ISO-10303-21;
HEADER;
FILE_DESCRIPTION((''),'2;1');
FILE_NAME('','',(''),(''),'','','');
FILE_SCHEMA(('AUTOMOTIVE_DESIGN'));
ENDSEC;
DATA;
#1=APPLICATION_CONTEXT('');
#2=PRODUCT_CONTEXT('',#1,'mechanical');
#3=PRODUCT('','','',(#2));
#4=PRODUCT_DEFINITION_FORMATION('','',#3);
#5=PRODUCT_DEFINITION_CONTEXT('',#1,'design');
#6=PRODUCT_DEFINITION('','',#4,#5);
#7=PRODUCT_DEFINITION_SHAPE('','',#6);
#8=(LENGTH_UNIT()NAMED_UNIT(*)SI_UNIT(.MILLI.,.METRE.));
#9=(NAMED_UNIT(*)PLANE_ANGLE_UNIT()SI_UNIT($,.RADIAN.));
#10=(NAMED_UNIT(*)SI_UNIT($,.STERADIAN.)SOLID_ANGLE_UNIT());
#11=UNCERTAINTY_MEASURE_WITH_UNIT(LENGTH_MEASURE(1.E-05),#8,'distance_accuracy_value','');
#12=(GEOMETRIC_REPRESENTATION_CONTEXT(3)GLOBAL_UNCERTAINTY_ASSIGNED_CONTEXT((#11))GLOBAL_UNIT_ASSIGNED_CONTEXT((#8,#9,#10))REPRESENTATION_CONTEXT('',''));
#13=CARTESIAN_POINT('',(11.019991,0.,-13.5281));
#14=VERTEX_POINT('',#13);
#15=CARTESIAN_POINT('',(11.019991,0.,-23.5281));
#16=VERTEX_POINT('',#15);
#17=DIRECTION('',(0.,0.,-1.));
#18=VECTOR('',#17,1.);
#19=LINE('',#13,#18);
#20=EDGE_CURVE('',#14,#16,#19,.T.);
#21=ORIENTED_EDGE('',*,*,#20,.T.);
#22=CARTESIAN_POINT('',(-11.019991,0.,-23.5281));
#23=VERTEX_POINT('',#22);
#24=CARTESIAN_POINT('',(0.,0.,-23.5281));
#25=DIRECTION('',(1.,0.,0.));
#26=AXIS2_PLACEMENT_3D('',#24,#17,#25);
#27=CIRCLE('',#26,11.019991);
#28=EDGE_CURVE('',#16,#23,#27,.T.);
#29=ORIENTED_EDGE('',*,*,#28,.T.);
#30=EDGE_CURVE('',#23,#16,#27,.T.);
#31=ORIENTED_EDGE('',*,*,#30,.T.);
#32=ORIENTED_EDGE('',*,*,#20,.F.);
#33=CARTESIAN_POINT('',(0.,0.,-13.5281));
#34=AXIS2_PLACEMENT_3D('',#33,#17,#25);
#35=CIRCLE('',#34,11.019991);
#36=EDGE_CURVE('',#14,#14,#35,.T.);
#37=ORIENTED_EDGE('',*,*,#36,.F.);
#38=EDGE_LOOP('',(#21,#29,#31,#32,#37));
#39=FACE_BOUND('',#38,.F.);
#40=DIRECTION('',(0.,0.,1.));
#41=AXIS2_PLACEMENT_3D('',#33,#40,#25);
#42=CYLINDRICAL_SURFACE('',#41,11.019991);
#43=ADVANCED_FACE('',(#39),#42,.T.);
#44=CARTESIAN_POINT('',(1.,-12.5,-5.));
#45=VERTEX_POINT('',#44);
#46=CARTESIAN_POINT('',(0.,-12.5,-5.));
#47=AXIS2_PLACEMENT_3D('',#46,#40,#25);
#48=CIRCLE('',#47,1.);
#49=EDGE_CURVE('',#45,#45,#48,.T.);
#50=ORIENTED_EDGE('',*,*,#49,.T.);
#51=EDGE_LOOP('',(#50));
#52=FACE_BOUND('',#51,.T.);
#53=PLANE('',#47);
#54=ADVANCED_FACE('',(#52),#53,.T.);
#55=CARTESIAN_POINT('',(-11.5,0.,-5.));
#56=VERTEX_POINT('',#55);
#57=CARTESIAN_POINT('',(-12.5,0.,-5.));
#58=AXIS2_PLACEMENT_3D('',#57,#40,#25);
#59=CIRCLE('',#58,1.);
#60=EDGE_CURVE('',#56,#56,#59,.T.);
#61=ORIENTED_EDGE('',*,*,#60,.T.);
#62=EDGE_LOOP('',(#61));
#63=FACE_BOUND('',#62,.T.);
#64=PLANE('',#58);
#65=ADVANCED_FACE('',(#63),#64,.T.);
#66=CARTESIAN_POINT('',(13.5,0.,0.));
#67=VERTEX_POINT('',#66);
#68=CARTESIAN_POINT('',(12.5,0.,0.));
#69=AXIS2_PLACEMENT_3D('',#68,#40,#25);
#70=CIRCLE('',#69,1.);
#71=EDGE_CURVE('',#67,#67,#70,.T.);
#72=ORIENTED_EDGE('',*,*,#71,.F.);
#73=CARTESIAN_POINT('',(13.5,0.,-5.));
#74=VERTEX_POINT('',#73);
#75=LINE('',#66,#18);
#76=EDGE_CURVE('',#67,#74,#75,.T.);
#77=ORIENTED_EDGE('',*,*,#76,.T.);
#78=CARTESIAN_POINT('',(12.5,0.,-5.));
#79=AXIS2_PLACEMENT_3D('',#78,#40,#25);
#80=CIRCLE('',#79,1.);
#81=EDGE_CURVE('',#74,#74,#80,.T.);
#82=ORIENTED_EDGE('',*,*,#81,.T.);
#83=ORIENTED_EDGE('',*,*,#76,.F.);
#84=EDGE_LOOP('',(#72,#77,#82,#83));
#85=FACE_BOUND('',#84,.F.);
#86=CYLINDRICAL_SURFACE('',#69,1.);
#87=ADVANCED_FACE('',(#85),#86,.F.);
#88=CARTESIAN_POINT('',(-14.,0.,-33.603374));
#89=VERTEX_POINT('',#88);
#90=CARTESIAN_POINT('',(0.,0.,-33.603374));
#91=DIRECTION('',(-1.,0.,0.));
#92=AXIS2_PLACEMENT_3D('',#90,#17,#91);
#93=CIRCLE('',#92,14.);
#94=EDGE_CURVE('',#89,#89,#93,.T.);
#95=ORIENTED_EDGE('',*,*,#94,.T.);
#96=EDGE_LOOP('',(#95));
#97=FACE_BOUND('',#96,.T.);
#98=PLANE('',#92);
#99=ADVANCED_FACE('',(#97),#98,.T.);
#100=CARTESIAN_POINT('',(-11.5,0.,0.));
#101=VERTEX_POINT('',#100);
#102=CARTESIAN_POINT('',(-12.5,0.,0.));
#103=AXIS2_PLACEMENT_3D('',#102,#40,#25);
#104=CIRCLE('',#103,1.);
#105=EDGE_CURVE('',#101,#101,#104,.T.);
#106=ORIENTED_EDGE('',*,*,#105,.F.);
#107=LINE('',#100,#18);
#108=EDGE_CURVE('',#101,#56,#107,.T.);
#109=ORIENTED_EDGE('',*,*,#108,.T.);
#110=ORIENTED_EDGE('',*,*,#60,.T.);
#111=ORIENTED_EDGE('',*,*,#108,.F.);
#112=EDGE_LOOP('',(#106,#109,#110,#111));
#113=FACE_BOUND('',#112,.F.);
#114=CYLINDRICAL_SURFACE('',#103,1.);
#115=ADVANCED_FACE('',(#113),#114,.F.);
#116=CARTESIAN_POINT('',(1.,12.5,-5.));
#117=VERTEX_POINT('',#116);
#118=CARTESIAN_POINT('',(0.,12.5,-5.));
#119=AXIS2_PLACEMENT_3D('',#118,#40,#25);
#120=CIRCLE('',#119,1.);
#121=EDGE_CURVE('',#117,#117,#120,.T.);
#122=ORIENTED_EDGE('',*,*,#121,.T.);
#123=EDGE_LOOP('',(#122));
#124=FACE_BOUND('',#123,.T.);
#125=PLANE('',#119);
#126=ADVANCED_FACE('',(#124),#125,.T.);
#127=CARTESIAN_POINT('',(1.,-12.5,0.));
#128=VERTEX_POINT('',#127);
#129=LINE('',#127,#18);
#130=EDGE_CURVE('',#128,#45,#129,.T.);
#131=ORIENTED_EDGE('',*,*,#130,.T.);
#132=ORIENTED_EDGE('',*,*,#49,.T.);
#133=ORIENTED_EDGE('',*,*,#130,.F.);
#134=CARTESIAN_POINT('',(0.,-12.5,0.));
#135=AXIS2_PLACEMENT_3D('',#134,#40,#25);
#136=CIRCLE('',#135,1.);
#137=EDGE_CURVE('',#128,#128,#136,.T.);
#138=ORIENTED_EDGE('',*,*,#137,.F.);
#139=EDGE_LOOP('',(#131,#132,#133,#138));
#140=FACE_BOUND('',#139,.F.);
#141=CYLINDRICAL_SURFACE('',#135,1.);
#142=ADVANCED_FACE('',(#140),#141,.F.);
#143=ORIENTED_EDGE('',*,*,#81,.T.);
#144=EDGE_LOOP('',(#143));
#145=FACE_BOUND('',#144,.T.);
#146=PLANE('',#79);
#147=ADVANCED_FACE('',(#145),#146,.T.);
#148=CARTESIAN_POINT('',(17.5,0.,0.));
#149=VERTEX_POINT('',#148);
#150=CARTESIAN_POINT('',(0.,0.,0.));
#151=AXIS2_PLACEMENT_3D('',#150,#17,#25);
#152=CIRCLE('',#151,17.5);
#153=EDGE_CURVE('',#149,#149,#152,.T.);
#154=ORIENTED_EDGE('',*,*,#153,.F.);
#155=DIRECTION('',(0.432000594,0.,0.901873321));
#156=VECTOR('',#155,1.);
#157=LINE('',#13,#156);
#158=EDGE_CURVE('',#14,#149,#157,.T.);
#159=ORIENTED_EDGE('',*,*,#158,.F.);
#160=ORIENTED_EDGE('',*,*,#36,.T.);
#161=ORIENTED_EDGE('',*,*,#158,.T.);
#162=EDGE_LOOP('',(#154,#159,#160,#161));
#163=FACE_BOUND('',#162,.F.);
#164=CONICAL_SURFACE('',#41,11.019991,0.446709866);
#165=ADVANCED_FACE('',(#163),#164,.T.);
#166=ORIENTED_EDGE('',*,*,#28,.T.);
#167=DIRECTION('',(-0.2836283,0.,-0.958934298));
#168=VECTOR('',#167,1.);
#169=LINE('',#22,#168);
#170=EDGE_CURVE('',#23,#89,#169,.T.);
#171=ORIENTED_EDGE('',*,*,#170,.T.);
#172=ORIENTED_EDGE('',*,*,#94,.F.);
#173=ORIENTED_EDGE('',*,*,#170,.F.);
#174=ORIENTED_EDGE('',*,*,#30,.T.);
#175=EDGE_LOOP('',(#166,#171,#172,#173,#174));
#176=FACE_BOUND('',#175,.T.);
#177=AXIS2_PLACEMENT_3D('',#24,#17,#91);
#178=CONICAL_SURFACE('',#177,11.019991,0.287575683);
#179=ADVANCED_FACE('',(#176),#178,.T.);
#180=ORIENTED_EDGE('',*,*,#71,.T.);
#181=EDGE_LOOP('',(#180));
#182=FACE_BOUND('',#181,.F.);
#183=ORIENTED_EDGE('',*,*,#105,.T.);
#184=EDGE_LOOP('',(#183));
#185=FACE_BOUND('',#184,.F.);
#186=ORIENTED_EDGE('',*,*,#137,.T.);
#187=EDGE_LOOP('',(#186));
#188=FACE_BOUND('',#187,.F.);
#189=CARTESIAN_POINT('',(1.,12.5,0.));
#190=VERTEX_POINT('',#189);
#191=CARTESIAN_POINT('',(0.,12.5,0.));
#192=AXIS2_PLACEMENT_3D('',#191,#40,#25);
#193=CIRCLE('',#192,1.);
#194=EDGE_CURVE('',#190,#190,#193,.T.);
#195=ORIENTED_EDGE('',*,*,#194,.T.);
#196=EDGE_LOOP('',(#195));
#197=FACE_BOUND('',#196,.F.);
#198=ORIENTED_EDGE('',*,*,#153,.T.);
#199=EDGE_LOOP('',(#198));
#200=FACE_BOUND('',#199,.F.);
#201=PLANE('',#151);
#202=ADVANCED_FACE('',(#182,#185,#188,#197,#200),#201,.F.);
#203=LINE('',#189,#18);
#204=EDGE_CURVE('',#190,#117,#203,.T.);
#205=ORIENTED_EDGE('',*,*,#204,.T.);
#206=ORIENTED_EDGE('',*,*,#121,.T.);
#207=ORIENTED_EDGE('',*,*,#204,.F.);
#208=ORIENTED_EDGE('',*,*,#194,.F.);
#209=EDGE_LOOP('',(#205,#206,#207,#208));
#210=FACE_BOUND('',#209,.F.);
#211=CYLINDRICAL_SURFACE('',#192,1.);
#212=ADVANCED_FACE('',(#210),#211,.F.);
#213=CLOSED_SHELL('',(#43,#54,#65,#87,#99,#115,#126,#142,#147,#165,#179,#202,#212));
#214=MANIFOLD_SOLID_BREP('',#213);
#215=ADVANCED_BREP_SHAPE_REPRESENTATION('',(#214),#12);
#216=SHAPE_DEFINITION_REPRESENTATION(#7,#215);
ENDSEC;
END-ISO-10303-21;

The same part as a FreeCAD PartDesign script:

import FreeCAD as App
import Part
import Sketcher
from FreeCAD import Vector
Q = App.Units.Quantity


def add_polygon(sketch, points):
    """Adds a closed chain of lines whose ends are joined by coincident constraints."""
    first, n = sketch.GeometryCount, len(points)
    for a, b in zip(points, points[1:] + points[:1]):
        sketch.addGeometry(Part.LineSegment(App.Vector(*a, 0), App.Vector(*b, 0)), False)
    for i in range(n):
        sketch.addConstraint(Sketcher.Constraint("Coincident", first + i, 2, first + (i + 1) % n, 1))

doc = App.newDocument("Part")
body = doc.addObject("PartDesign::Body", "Body")

# Sketch on XZ plane
sketch1 = body.newObject("Sketcher::SketchObject", "Sketch")
sketch1.AttachmentSupport = (doc.getObject("XZ_Plane"), [""])
sketch1.MapMode = "FlatFace"
add_polygon(sketch1, [(18, 0), (0, 0), (0, -14), (11, -14)])  # lines 0-3
sketch1.addConstraint(Sketcher.Constraint("Horizontal", 0))
sketch1.addConstraint(Sketcher.Constraint("Vertical", 1))
sketch1.addConstraint(Sketcher.Constraint("Horizontal", 2))
sketch1.addConstraint(Sketcher.Constraint("Coincident", 0, 2, -1, 1))
sketch1.addConstraint(Sketcher.Constraint("Distance", 3, Q("15 mm")))
sketch1.addConstraint(Sketcher.Constraint("DistanceX", 0, 2, 0, 1, Q("17.5 mm")))
sketch1.addConstraint(Sketcher.Constraint("DistanceY", 1, 2, 1, 1, Q("13.5281 mm")))
revolution = body.newObject("PartDesign::Revolution", "Revolution")
revolution.Profile = sketch1
revolution.ReferenceAxis = (sketch1, ["V_Axis"])
revolution.Angle = 360

# Sketch on XY plane
sketch2 = body.newObject("Sketcher::SketchObject", "Sketch001")
sketch2.AttachmentSupport = (doc.getObject("XY_Plane"), [""])
sketch2.MapMode = "FlatFace"
sketch2.addGeometry(Part.Circle(Vector(0, 12.5, 0), Vector(0, 0, 1), 1), False)
sketch2.addGeometry(Part.Circle(Vector(-12.5, 0, 0), Vector(0, 0, 1), 1), False)
sketch2.addGeometry(Part.Circle(Vector(12.5, 0, 0), Vector(0, 0, 1), 1), False)
sketch2.addGeometry(Part.Circle(Vector(0, -12.5, 0), Vector(0, 0, 1), 1), False)
sketch2.addConstraint(Sketcher.Constraint("Equal", 0, 1))
sketch2.addConstraint(Sketcher.Constraint("Equal", 1, 2))
sketch2.addConstraint(Sketcher.Constraint("Equal", 2, 3))
sketch2.addConstraint(Sketcher.Constraint("Symmetric", 1, 3, 2, 3, -1, 1))
sketch2.addConstraint(Sketcher.Constraint("Symmetric", 0, 3, 3, 3, -1, 1))
sketch2.addConstraint(Sketcher.Constraint("PointOnObject", 0, 3, -2))
sketch2.addConstraint(Sketcher.Constraint("PointOnObject", 1, 3, -1))
sketch2.addConstraint(Sketcher.Constraint("Diameter", 0, Q("2 mm")))
sketch2.addConstraint(Sketcher.Constraint("DistanceX", 1, 3, 2, 3, Q("25 mm")))
sketch2.addConstraint(Sketcher.Constraint("DistanceY", 3, 3, 0, 3, Q("25 mm")))
pocket1 = body.newObject("PartDesign::Pocket", "Pocket")
pocket1.Profile = sketch2
pocket1.Length = 5

# Sketch on XY plane
sketch3 = body.newObject("Sketcher::SketchObject", "Sketch002")
sketch3.AttachmentSupport = (doc.getObject("XY_Plane"), [""])
sketch3.MapMode = "FlatFace"
sketch3.AttachmentOffset = App.Placement(Vector(0, 0, -13.5281), App.Rotation())
sketch3.addGeometry(Part.Circle(Vector(0, 0, 0), Vector(0, 0, 1), 11), False)
sketch3.addConstraint(Sketcher.Constraint("Coincident", 0, 3, -1, 1))
sketch3.addConstraint(Sketcher.Constraint("Diameter", 0, Q("22.039982 mm")))
pad1 = body.newObject("PartDesign::Pad", "Pad")
pad1.Profile = sketch3
pad1.Length = 10
pad1.Reversed = True

# Sketch on XZ plane
sketch4 = body.newObject("Sketcher::SketchObject", "Sketch003")
sketch4.AttachmentSupport = (doc.getObject("XZ_Plane"), [""])
sketch4.MapMode = "FlatFace"
add_polygon(sketch4, [(0, -24), (-11, -24), (-14, -34), (0, -34)])  # lines 0-3
sketch4.addConstraint(Sketcher.Constraint("Horizontal", 0))
sketch4.addConstraint(Sketcher.Constraint("Horizontal", 2))
sketch4.addConstraint(Sketcher.Constraint("Vertical", 3))
sketch4.addConstraint(Sketcher.Constraint("PointOnObject", 2, 2, -2))
sketch4.addConstraint(Sketcher.Constraint("DistanceX", 2, 1, 2, 2, Q("14 mm")))
sketch4.addConstraint(Sketcher.Constraint("DistanceX", 0, 2, 0, 1, Q("11.019991 mm")))
sketch4.addConstraint(Sketcher.Constraint("DistanceY", 0, 2, -1, 1, Q("23.5281 mm")))
sketch4.addConstraint(Sketcher.Constraint("Distance", 1, Q("10.506741 mm")))
revolution2 = body.newObject("PartDesign::Revolution", "Revolution001")
revolution2.Profile = sketch4
revolution2.ReferenceAxis = (sketch4, ["V_Axis"])
revolution2.Angle = 360

doc.recompute()
